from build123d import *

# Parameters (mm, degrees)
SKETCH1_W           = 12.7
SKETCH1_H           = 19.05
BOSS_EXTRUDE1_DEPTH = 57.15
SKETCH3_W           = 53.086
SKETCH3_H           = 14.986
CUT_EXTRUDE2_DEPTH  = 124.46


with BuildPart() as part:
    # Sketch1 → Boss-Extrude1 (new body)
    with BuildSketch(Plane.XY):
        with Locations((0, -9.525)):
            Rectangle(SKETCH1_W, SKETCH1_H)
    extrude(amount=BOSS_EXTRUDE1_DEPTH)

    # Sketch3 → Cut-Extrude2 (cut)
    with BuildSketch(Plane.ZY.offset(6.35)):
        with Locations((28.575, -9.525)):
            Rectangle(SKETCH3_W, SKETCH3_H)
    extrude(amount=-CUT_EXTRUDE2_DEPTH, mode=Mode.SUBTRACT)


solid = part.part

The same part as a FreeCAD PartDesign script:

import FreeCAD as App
import Part
import Sketcher
from FreeCAD import Vector
Q = App.Units.Quantity

doc = App.newDocument("Part")
params = doc.addObject("Spreadsheet::Sheet", "Params")
for row, (alias, value) in enumerate([
    ("sketch1_width", "0.5 in"),
    ("sketch1_height", "0.75 in"),
    ("pad1_length", "2.25 in"),
    ("sketch2_width", "0.59 in"),
    ("sketch2_height", "2.09 in"),
    ("pocket1_length", "4.9 in"),
], start=1):
    params.set(f"A{row}", alias)
    params.set(f"B{row}", "=" + value)
    params.setAlias(f"B{row}", alias)

body = doc.addObject("PartDesign::Body", "Body")

# Sketch on XY plane
sketch1 = body.newObject("Sketcher::SketchObject", "Sketch")
sketch1.AttachmentSupport = (doc.getObject("XY_Plane"), [""])
sketch1.MapMode = "FlatFace"
sketch1.addGeometry([
    Part.LineSegment(Vector(-6, 0, 0), Vector(-6, -19, 0)),
    Part.LineSegment(Vector(-6, -19, 0), Vector(6, -19, 0)),
    Part.LineSegment(Vector(6, -19, 0), Vector(6, 0, 0)),
    Part.LineSegment(Vector(6, 0, 0), Vector(-6, 0, 0)),
], False)
sketch1.addConstraint([
    Sketcher.Constraint("Coincident", 0, 2, 1, 1),
    Sketcher.Constraint("Coincident", 1, 2, 2, 1),
    Sketcher.Constraint("Coincident", 2, 2, 3, 1),
    Sketcher.Constraint("Coincident", 3, 2, 0, 1),
    Sketcher.Constraint("Vertical", 0),
    Sketcher.Constraint("Horizontal", 1),
    Sketcher.Constraint("Vertical", 2),
    Sketcher.Constraint("Horizontal", 3),
    Sketcher.Constraint("Symmetric", 2, 2, 3, 2, -1, 1),
    Sketcher.Constraint("DistanceX", 1, 1, 1, 2, Q("0.5 in")),
    Sketcher.Constraint("DistanceY", 0, 2, 0, 1, Q("0.75 in")),
])
sketch1.setExpression("Constraints[9]", "Params.sketch1_width")
sketch1.setExpression("Constraints[10]", "Params.sketch1_height")
pad1 = body.newObject("PartDesign::Pad", "Pad")
pad1.Profile = sketch1
pad1.setExpression("Length", "Params.pad1_length")

# Sketch on YZ plane
sketch2 = body.newObject("Sketcher::SketchObject", "Sketch001")
sketch2.AttachmentSupport = (doc.getObject("YZ_Plane"), [""])
sketch2.MapMode = "FlatFace"
sketch2.AttachmentOffset = App.Placement(Vector(0, 0, -0.25 * 25.4), App.Rotation())
sketch2.addGeometry([
    Part.LineSegment(Vector(-2, 2, 0), Vector(-17, 2, 0)),
    Part.LineSegment(Vector(-17, 2, 0), Vector(-17, 55, 0)),
    Part.LineSegment(Vector(-17, 55, 0), Vector(-2, 55, 0)),
    Part.LineSegment(Vector(-2, 55, 0), Vector(-2, 2, 0)),
], False)
sketch2.addConstraint([
    Sketcher.Constraint("Coincident", 0, 2, 1, 1),
    Sketcher.Constraint("Coincident", 1, 2, 2, 1),
    Sketcher.Constraint("Coincident", 2, 2, 3, 1),
    Sketcher.Constraint("Coincident", 3, 2, 0, 1),
    Sketcher.Constraint("Horizontal", 0),
    Sketcher.Constraint("Vertical", 1),
    Sketcher.Constraint("Horizontal", 2),
    Sketcher.Constraint("Vertical", 3),
    Sketcher.Constraint("DistanceX", 0, 2, 0, 1, Q("0.59 in")),
    Sketcher.Constraint("DistanceY", 1, 1, 1, 2, Q("2.09 in")),
    Sketcher.Constraint("DistanceX", 0, 2, -1, 1, Q("0.67 in")),
    Sketcher.Constraint("DistanceY", -1, 1, 0, 2, Q("0.08 in")),
])
sketch2.setExpression("Constraints[8]", "Params.sketch2_width")
sketch2.setExpression("Constraints[9]", "Params.sketch2_height")
pocket1 = body.newObject("PartDesign::Pocket", "Pocket")
pocket1.Profile = sketch2
pocket1.setExpression("Length", "Params.pocket1_length")
pocket1.Reversed = True

doc.recompute()
